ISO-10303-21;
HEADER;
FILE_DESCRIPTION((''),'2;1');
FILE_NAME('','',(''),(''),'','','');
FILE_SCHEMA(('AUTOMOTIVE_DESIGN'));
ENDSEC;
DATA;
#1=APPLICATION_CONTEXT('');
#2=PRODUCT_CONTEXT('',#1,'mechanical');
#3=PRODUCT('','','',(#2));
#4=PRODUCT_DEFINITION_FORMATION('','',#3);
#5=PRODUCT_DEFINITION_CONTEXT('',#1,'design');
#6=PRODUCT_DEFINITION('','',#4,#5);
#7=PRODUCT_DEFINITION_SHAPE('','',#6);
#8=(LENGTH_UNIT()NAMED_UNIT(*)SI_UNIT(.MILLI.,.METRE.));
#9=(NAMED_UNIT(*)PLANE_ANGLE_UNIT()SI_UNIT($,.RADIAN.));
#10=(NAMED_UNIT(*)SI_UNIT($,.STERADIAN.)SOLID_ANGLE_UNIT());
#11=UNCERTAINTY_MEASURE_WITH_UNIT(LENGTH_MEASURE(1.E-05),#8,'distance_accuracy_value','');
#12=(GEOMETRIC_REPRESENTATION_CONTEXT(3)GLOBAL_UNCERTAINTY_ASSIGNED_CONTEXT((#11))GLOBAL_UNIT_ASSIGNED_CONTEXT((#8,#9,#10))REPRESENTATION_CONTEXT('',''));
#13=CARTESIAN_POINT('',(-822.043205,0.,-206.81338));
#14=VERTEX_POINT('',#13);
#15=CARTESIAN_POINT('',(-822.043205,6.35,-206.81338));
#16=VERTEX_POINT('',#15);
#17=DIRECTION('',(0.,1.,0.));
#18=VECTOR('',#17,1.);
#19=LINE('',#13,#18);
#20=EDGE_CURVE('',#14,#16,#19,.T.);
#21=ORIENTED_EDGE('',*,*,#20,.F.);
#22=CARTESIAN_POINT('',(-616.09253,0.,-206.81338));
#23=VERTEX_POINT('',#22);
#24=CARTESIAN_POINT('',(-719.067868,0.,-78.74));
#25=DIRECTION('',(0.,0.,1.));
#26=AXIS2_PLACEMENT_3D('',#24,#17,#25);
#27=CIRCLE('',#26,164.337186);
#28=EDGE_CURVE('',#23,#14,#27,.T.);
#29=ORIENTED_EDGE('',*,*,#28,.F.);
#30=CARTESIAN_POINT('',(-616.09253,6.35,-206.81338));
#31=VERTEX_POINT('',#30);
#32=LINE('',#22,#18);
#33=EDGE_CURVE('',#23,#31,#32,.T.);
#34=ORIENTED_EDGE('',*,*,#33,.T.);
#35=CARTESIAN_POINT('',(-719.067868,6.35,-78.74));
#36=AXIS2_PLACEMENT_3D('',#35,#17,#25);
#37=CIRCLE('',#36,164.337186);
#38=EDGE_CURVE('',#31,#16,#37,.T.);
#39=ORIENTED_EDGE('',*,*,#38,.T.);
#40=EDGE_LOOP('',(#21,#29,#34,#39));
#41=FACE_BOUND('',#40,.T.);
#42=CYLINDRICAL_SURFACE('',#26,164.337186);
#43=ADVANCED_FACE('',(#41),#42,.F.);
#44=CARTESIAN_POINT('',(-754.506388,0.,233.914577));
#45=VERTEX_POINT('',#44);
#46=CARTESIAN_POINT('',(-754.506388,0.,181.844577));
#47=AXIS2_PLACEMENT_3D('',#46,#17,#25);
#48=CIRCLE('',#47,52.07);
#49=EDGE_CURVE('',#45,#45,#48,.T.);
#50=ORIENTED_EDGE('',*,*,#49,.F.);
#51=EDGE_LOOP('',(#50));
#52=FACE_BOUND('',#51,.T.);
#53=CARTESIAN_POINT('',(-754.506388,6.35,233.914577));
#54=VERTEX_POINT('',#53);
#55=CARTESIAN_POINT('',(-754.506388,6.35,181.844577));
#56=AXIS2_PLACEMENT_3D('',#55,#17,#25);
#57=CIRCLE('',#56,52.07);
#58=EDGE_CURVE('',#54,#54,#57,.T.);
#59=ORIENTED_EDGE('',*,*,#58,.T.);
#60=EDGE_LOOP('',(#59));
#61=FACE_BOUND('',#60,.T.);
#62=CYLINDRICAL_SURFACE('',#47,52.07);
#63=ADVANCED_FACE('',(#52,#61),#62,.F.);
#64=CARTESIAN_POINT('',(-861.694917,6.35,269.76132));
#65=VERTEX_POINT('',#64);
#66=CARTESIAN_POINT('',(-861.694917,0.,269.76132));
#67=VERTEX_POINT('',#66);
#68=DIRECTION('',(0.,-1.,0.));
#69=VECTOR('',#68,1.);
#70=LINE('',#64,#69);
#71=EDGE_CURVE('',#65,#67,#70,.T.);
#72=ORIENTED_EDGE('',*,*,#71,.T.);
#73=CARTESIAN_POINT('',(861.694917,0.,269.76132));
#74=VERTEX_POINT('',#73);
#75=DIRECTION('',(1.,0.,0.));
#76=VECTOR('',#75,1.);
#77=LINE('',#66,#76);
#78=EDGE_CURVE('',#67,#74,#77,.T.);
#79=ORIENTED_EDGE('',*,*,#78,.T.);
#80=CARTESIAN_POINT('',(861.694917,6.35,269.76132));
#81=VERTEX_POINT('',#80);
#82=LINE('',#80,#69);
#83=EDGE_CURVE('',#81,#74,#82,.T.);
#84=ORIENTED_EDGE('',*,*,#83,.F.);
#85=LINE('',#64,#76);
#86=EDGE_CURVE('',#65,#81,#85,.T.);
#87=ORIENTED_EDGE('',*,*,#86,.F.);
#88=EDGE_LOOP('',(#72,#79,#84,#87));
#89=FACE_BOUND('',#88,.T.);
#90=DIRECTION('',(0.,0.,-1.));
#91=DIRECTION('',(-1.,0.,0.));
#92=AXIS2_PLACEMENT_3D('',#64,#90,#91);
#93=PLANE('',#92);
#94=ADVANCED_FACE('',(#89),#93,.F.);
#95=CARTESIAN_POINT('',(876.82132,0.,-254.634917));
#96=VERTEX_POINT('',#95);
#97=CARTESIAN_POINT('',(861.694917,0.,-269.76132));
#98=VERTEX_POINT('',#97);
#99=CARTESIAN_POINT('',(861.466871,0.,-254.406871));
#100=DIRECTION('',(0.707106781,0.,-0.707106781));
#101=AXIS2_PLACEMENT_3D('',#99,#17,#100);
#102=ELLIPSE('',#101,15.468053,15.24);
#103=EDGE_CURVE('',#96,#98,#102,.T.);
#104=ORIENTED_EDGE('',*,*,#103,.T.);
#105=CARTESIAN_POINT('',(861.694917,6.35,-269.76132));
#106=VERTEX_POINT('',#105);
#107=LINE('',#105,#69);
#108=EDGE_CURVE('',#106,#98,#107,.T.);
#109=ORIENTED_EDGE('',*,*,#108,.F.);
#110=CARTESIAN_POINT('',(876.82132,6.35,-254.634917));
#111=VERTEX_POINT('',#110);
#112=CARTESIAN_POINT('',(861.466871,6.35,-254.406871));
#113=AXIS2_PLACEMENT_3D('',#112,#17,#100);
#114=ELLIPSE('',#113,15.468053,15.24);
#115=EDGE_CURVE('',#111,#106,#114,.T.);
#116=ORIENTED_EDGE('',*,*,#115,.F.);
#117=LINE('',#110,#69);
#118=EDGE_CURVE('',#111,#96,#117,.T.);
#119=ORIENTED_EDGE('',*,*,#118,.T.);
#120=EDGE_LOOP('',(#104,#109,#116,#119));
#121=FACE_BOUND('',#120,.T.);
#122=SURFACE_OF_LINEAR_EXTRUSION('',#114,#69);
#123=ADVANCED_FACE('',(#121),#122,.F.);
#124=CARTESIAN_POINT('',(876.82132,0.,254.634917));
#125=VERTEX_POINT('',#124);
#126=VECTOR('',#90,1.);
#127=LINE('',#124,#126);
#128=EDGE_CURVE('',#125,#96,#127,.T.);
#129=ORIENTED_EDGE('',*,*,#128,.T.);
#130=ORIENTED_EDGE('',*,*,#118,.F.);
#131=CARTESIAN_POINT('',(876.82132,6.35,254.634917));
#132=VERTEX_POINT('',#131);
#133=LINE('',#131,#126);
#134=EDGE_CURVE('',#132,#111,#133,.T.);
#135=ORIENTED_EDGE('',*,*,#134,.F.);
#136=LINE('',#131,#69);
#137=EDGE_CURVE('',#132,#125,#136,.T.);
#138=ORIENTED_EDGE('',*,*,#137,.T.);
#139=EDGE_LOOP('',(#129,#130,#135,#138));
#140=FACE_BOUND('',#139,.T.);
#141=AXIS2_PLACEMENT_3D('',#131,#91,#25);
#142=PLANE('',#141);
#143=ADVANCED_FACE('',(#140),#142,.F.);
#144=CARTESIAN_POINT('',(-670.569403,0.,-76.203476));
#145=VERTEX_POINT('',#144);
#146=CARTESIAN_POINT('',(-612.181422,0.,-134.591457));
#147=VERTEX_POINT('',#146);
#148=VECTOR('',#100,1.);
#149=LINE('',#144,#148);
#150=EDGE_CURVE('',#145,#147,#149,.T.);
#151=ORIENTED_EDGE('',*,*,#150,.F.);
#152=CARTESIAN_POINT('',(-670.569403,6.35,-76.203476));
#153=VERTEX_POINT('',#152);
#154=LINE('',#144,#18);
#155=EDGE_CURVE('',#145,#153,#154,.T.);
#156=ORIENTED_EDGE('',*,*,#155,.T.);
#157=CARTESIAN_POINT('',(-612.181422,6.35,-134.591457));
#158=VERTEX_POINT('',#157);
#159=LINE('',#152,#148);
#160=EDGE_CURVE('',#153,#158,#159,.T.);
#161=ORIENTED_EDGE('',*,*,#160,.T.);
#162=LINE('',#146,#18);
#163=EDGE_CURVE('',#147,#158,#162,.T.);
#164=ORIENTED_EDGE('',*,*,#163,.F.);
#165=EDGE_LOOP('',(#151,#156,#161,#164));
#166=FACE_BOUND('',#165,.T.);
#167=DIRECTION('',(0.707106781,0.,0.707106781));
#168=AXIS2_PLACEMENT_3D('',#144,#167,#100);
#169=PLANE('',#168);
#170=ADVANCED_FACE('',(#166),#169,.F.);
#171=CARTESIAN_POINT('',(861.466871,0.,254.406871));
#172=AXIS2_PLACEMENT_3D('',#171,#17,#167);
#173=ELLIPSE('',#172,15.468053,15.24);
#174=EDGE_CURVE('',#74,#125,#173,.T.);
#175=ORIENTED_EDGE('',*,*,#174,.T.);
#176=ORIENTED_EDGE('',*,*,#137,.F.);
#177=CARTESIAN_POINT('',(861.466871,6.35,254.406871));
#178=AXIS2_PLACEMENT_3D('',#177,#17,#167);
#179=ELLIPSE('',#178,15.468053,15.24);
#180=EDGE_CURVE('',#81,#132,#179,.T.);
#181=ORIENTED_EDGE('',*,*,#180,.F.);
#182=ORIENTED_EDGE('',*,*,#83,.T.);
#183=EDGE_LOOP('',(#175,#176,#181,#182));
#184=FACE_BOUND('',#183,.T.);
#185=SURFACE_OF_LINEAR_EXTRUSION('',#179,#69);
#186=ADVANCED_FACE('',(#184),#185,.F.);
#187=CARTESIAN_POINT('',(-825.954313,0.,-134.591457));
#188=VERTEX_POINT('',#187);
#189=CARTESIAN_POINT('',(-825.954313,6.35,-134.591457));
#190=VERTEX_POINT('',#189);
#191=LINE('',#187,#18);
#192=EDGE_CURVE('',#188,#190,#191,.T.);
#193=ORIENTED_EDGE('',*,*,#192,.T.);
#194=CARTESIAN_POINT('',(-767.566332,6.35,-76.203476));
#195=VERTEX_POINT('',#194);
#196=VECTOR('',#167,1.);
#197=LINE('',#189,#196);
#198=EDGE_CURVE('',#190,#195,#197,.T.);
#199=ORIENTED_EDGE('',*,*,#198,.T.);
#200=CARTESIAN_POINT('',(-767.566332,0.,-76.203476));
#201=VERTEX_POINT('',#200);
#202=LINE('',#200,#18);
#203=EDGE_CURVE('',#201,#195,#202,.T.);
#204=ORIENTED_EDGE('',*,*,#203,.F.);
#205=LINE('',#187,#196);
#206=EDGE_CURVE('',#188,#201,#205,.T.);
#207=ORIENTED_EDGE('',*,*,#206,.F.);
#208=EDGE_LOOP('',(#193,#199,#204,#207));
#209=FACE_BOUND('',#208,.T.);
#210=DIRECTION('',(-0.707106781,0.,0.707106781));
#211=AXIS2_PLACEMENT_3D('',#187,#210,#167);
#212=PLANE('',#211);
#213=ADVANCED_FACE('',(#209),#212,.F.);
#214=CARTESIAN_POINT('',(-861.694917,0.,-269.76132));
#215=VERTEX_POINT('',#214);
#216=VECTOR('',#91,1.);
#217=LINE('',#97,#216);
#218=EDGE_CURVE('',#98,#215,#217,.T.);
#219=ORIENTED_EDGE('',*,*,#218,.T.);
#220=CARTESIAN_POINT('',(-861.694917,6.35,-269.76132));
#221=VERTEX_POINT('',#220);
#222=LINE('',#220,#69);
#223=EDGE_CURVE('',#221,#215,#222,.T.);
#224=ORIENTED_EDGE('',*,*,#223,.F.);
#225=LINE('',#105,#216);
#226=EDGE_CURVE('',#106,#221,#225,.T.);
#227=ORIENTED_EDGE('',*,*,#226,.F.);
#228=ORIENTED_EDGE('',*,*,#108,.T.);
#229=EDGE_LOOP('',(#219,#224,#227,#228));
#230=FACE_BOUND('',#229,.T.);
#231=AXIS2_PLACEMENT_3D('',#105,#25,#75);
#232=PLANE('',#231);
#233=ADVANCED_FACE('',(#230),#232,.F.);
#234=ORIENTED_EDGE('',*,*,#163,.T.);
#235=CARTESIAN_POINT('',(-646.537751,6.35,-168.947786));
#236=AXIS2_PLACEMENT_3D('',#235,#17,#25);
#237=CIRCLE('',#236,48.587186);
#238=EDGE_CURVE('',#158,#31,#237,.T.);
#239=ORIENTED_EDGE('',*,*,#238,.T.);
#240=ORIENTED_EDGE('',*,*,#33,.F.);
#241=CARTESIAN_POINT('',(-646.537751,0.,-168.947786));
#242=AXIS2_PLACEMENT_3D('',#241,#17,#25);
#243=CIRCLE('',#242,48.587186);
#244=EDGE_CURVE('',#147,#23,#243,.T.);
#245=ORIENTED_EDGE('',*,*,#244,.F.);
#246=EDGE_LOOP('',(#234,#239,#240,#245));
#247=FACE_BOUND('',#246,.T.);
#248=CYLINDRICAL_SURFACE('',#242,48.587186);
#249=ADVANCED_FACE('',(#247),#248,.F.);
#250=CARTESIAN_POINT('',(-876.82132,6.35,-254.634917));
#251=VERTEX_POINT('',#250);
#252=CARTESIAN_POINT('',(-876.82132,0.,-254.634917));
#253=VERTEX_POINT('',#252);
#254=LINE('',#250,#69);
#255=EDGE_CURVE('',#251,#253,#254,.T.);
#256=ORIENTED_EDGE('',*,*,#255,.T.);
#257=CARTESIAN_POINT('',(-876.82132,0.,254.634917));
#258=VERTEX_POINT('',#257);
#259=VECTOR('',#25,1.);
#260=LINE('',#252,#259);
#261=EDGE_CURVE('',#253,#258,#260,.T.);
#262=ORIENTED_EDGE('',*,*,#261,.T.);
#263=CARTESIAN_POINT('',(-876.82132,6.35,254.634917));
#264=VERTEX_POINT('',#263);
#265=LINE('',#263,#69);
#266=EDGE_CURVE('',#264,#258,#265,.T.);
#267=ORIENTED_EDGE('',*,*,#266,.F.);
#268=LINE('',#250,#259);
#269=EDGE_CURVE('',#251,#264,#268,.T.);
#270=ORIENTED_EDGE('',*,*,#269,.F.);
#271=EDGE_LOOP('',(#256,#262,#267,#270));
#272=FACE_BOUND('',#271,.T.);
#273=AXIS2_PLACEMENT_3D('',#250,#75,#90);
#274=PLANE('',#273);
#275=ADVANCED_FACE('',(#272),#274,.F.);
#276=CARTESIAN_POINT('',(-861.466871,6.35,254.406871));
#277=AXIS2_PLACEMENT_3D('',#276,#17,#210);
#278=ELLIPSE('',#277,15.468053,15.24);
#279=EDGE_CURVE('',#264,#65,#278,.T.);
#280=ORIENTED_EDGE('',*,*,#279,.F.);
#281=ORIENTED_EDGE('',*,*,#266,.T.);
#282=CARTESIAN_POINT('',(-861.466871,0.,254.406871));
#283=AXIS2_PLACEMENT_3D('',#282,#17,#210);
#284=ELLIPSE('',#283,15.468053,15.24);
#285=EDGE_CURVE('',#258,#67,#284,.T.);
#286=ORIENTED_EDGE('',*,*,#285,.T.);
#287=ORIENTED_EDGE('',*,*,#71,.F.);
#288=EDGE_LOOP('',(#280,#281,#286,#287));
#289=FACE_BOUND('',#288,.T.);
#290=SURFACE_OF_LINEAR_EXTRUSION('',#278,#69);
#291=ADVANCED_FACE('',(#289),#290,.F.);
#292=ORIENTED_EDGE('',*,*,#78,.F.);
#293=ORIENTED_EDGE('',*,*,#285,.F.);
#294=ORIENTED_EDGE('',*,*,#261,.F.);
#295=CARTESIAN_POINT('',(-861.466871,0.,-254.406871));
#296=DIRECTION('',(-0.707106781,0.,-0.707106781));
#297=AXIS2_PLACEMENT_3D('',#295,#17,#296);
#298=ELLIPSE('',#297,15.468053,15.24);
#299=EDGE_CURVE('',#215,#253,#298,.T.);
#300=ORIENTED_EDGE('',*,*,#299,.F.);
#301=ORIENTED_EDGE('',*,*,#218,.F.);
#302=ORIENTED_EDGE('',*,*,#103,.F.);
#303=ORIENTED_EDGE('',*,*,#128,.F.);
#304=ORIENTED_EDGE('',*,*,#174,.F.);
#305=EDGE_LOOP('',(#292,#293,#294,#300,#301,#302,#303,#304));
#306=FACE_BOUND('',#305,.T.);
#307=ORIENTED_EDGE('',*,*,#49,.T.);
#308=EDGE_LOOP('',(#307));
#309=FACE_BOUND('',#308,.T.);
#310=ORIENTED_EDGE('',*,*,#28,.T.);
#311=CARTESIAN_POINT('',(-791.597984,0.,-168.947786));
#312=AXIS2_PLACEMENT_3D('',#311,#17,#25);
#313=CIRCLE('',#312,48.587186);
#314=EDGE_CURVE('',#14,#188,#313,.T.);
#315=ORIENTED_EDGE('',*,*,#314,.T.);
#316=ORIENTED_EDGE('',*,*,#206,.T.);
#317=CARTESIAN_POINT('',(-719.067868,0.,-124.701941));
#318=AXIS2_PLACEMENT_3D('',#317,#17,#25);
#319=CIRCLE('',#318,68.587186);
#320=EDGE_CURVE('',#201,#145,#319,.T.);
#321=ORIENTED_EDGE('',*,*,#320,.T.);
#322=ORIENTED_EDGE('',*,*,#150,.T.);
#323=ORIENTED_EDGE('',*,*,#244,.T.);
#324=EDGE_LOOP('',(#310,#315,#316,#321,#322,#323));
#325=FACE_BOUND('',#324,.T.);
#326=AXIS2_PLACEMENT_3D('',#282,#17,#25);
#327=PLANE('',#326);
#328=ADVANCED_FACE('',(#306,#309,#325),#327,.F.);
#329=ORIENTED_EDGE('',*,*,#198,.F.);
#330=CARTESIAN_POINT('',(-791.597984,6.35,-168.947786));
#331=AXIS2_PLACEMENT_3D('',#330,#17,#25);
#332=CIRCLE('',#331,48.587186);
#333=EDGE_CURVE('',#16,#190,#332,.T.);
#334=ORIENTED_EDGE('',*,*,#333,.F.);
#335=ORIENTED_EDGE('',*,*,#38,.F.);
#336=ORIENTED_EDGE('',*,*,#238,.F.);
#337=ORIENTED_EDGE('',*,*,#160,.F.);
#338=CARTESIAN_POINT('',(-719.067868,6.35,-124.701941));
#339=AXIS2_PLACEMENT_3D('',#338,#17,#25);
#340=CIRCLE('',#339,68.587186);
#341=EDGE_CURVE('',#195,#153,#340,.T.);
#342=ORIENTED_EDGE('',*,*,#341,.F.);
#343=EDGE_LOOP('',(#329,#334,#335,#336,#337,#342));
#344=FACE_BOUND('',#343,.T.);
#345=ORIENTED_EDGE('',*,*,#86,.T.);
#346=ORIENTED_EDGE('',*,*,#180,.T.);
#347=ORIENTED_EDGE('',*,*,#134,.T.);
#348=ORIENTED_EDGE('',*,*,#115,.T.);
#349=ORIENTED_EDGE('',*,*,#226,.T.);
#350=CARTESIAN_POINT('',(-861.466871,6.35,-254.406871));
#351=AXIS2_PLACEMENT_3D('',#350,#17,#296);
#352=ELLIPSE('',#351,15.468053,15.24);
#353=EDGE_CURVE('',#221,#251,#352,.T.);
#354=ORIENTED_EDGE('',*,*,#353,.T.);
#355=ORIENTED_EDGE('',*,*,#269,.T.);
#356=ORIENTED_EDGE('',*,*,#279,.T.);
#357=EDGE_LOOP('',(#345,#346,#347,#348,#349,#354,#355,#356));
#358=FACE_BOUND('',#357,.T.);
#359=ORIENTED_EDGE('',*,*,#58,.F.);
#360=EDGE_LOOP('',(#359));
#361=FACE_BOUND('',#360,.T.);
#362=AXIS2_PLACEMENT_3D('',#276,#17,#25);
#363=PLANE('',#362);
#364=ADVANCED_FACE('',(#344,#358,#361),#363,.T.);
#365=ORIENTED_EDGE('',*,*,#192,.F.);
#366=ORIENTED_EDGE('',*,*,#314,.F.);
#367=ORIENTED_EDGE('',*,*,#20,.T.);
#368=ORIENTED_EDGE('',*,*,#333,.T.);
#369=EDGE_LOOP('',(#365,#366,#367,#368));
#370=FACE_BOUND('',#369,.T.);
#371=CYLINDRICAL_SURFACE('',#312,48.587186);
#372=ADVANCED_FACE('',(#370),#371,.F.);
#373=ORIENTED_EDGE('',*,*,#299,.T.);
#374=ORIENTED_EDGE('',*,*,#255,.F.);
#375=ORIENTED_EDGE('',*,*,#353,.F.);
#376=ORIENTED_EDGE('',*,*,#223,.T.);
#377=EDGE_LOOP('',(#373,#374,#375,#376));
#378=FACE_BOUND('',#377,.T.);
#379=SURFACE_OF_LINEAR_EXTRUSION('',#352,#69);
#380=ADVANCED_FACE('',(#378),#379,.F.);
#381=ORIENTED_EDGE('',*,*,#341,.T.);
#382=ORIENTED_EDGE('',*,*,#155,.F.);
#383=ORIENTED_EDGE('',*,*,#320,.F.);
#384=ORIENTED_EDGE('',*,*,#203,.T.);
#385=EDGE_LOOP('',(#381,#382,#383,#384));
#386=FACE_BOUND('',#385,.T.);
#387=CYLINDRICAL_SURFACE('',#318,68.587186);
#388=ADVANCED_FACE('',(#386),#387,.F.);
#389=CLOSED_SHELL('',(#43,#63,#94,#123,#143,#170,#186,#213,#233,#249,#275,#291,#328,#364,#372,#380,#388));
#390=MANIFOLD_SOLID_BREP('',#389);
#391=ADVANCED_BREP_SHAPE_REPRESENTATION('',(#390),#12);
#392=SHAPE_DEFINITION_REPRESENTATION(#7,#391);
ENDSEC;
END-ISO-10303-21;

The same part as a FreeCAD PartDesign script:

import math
import FreeCAD as App
import Part
import Sketcher
from FreeCAD import Vector
Q = App.Units.Quantity

doc = App.newDocument("Part")
body = doc.addObject("PartDesign::Body", "Body")

sketch1 = doc.addObject("Sketcher::SketchObject", "Sketch")
body.addObject(sketch1)
sketch1.AttachmentSupport = (doc.XZ_Plane, [""])
sketch1.MapMode = "FlatFace"
sketch1.addGeometry([
    Part.LineSegment(Vector(-861.694917, 269.76132, 0), Vector(861.694917, 269.76132, 0)),
    Part.BSplineCurve([Vector(861.694917, 269.76132, 0), Vector(876.82132, 269.76132, 0), Vector(876.82132, 254.634917, 0)], [3, 3], [5.505213485, 7.061157129], False, 2, [1, 0.712338451, 1], False),
    Part.LineSegment(Vector(876.82132, 254.634917, 0), Vector(876.82132, -254.634917, 0)),
    Part.BSplineCurve([Vector(876.82132, -254.634917, 0), Vector(876.82132, -269.76132, 0), Vector(861.694917, -269.76132, 0)], [3, 3], [5.505213485, 7.061157129], False, 2, [1, 0.712338451, 1], False),
    Part.LineSegment(Vector(861.694917, -269.76132, 0), Vector(-861.694917, -269.76132, 0)),
    Part.BSplineCurve([Vector(-861.694917, -269.76132, 0), Vector(-876.82132, -269.76132, 0), Vector(-876.82132, -254.634917, 0)], [3, 3], [5.505213485, 7.061157129], False, 2, [1, 0.712338451, 1], False),
    Part.LineSegment(Vector(-876.82132, -254.634917, 0), Vector(-876.82132, 254.634917, 0)),
    Part.BSplineCurve([Vector(-876.82132, 254.634917, 0), Vector(-876.82132, 269.76132, 0), Vector(-861.694917, 269.76132, 0)], [3, 3], [5.505213485, 7.061157129], False, 2, [1, 0.712338451, 1], False),
], False)
sketch1.addConstraint([
    Sketcher.Constraint("Block", 1),
    Sketcher.Constraint("Block", 3),
    Sketcher.Constraint("Block", 5),
    Sketcher.Constraint("Block", 7),
    Sketcher.Constraint("Coincident", 0, 2, 1, 1),
    Sketcher.Constraint("Coincident", 1, 2, 2, 1),
    Sketcher.Constraint("Coincident", 2, 2, 3, 1),
    Sketcher.Constraint("Coincident", 3, 2, 4, 1),
    Sketcher.Constraint("Coincident", 4, 2, 5, 1),
    Sketcher.Constraint("Coincident", 5, 2, 6, 1),
    Sketcher.Constraint("Coincident", 6, 2, 7, 1),
    Sketcher.Constraint("Coincident", 7, 2, 0, 1),
])
pad1 = doc.addObject("PartDesign::Pad", "Pad")
body.addObject(pad1)
pad1.Profile = sketch1
pad1.Length = Q("0.25 in")
pad1.Reversed = True

sketch2 = doc.addObject("Sketcher::SketchObject", "Sketch001")
body.addObject(sketch2)
sketch2.AttachmentSupport = (doc.XZ_Plane, [""])
sketch2.MapMode = "FlatFace"
sketch2.AttachmentOffset = App.Placement(Vector(0, 0, -0.25 * 25.4), App.Rotation())
sketch2.addGeometry([
    Part.LineSegment(Vector(-825.954313, -134.591457, 0), Vector(-767.566332, -76.203476, 0)),
    Part.ArcOfCircle(Part.Circle(Vector(-719.067868, -124.701941, 0), Vector(0, 0, 1), 68.587186), math.radians(45), math.radians(135)),
    Part.LineSegment(Vector(-670.569403, -76.203476, 0), Vector(-612.181422, -134.591457, 0)),
    Part.ArcOfCircle(Part.Circle(Vector(-646.537751, -168.947786, 0), Vector(0, 0, 1), 48.587186), math.radians(-51.199539), math.radians(45)),
    Part.ArcOfCircle(Part.Circle(Vector(-719.067868, -78.74, 0), Vector(0, 0, 1), 164.337186), math.radians(-128.800461), math.radians(-51.199539)),
    Part.ArcOfCircle(Part.Circle(Vector(-791.597984, -168.947786, 0), Vector(0, 0, 1), 48.587186), math.radians(135), math.radians(231.199539)),
], False)
sketch2.addConstraint([
    Sketcher.Constraint("Tangent", 0, 2, 1, 2),
    Sketcher.Constraint("Tangent", 1, 1, 2, 1),
    Sketcher.Constraint("Tangent", 2, 2, 3, 2),
    Sketcher.Constraint("Tangent", 3, 1, 4, 2),
    Sketcher.Constraint("Tangent", 4, 1, 5, 2),
    Sketcher.Constraint("Tangent", 5, 1, 0, 1),
    Sketcher.Constraint("Equal", 3, 5),
    Sketcher.Constraint("Perpendicular", 0, 2),
    Sketcher.Constraint("Horizontal", 3, 3, 5, 3),
    Sketcher.Constraint("Horizontal", 0, 2, 1, 1),
    Sketcher.Constraint("DistanceY", 4, 3, -1, 1, Q("3.1 in")),
    Sketcher.Constraint("Radius", 1, Q("68.587186 mm")),
    Sketcher.Constraint("Radius", 3, Q("48.587186 mm")),
    Sketcher.Constraint("Radius", 4, Q("164.337186 mm")),
    Sketcher.Constraint("DistanceY", 1, 3, -1, 1, Q("124.701941 mm")),
    Sketcher.Constraint("DistanceX", 3, 3, -1, 1, Q("646.537751 mm")),
])
pocket1 = doc.addObject("PartDesign::Pocket", "Pocket")
body.addObject(pocket1)
pocket1.Profile = sketch2
pocket1.Type = "ThroughAll"
pocket1.Reversed = True

sketch3 = doc.addObject("Sketcher::SketchObject", "Sketch002")
body.addObject(sketch3)
sketch3.AttachmentSupport = (doc.XZ_Plane, [""])
sketch3.MapMode = "FlatFace"
sketch3.AttachmentOffset = App.Placement(Vector(0, 0, -0.25 * 25.4), App.Rotation())
sketch3.addGeometry(Part.Circle(Vector(-754.506388, 181.844577, 0), Vector(0, 0, 1), 52.07), False)
sketch3.addConstraint([
    Sketcher.Constraint("Diameter", 0, Q("4.1 in")),
    Sketcher.Constraint("DistanceX", 0, 3, -1, 1, Q("754.506388 mm")),
    Sketcher.Constraint("DistanceY", -1, 1, 0, 3, Q("181.844577 mm")),
])
pocket2 = doc.addObject("PartDesign::Pocket", "Pocket001")
body.addObject(pocket2)
pocket2.Profile = sketch3
pocket2.Type = "ThroughAll"
pocket2.Reversed = True

doc.recompute()
